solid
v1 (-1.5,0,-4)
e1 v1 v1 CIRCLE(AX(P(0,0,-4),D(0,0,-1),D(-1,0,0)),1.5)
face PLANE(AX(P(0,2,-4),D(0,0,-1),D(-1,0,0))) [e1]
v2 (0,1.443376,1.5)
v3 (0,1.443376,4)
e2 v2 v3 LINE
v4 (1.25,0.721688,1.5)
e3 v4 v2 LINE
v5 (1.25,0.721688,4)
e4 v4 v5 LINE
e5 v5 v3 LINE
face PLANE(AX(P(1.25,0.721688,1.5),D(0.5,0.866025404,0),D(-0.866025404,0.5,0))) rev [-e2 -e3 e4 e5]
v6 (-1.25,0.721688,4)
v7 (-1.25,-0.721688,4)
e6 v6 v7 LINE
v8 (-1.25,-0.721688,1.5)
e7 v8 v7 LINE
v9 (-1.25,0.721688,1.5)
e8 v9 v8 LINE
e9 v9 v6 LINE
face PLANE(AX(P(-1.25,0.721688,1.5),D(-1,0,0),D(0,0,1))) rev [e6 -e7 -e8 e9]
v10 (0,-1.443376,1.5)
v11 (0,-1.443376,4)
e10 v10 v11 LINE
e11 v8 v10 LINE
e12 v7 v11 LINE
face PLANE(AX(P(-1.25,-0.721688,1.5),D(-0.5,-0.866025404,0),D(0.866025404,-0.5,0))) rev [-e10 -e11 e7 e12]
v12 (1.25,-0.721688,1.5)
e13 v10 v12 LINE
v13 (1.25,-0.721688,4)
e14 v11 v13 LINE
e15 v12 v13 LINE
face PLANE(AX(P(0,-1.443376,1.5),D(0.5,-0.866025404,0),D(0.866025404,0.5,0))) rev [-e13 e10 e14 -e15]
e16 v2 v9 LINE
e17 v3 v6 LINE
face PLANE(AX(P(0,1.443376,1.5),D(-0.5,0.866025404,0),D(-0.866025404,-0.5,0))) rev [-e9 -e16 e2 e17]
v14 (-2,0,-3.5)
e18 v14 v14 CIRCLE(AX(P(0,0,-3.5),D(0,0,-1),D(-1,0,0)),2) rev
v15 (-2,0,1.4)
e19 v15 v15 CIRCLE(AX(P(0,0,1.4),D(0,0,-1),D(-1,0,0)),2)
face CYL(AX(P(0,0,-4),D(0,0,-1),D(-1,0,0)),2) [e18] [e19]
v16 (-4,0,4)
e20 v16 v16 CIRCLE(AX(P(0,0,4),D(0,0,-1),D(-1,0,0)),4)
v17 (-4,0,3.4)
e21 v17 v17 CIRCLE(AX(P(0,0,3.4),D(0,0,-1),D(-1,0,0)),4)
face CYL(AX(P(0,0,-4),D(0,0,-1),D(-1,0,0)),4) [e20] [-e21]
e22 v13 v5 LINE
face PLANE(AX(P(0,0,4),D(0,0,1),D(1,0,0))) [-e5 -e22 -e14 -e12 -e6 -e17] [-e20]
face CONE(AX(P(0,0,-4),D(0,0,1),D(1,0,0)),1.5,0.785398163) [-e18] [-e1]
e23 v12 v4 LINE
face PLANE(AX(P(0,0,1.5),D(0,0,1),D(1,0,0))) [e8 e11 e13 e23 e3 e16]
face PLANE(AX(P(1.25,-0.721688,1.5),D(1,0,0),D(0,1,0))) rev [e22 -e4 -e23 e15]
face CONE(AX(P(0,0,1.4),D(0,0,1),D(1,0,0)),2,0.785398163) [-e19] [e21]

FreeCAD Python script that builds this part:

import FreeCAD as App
import Part
import Sketcher

V = App.Vector
Q = App.Units.Quantity


def edges_at(feature, points):
    """Names of the edges that pass closest to the given points."""
    edges = feature.Shape.Edges
    near = lambda p: min(range(len(edges)), key=lambda i: edges[i].distToShape(Part.Vertex(*p))[0])
    return sorted({f"Edge{near(p) + 1}" for p in points})

doc = App.newDocument("Part")
body = doc.addObject("PartDesign::Body", "Body")

sketch1 = body.newObject("Sketcher::SketchObject", "Sketch")
sketch1.AttachmentSupport = (doc.getObject("YZ_Plane"), [""])
sketch1.MapMode = "FlatFace"
sketch1.addGeometry(Part.LineSegment(V(4, 4, 0), V(0, 4, 0)), False)
sketch1.addGeometry(Part.LineSegment(V(0, 4, 0), V(0, -4, 0)), False)
sketch1.addGeometry(Part.LineSegment(V(0, -4, 0), V(2, -4, 0)), False)
sketch1.addGeometry(Part.LineSegment(V(2, -4, 0), V(2, 1.4, 0)), False)
sketch1.addGeometry(Part.LineSegment(V(2, 1.4, 0), V(4, 3.4, 0)), False)
sketch1.addGeometry(Part.LineSegment(V(4, 3.4, 0), V(4, 4, 0)), False)
sketch1.addConstraint(Sketcher.Constraint("Coincident", 0, 2, 1, 1))
sketch1.addConstraint(Sketcher.Constraint("Coincident", 1, 2, 2, 1))
sketch1.addConstraint(Sketcher.Constraint("Coincident", 2, 2, 3, 1))
sketch1.addConstraint(Sketcher.Constraint("Coincident", 3, 2, 4, 1))
sketch1.addConstraint(Sketcher.Constraint("Coincident", 4, 2, 5, 1))
sketch1.addConstraint(Sketcher.Constraint("Coincident", 5, 2, 0, 1))
sketch1.addConstraint(Sketcher.Constraint("Horizontal", 0))
sketch1.addConstraint(Sketcher.Constraint("Vertical", 1))
sketch1.addConstraint(Sketcher.Constraint("Horizontal", 2))
sketch1.addConstraint(Sketcher.Constraint("Vertical", 3))
sketch1.addConstraint(Sketcher.Constraint("Vertical", 5))
sketch1.addConstraint(Sketcher.Constraint("Symmetric", 0, 2, 1, 2, -1, 1))
sketch1.addConstraint(Sketcher.Constraint("DistanceX", 0, 2, 0, 1, 4.0))
sketch1.addConstraint(Sketcher.Constraint("DistanceX", 2, 1, 2, 2, 2.0))
sketch1.addConstraint(Sketcher.Constraint("DistanceY", 1, 2, 1, 1, 8.0))
sketch1.addConstraint(Sketcher.Constraint("Angle", 4, Q("45 deg")))
sketch1.addConstraint(Sketcher.Constraint("DistanceY", 3, 1, 3, 2, 5.4))
revolution = body.newObject("PartDesign::Revolution", "Revolution")
revolution.Profile = sketch1
revolution.ReferenceAxis = (sketch1, ["V_Axis"])
revolution.Angle = 360
doc.recompute()

chamfer = body.newObject("PartDesign::Chamfer", "Chamfer")
chamfer.Base = (revolution, edges_at(revolution, [(2, 0, -4)]))
chamfer.Size = 0.5

sketch2 = body.newObject("Sketcher::SketchObject", "Sketch001")
sketch2.AttachmentSupport = (doc.getObject("XY_Plane"), [""])
sketch2.MapMode = "FlatFace"
sketch2.AttachmentOffset = App.Placement(V(0, 0, 4), App.Rotation())
sketch2.addGeometry(Part.LineSegment(V(0, 1.4, 0), V(-1.2, 0.7, 0)), False)
sketch2.addGeometry(Part.LineSegment(V(-1.2, 0.7, 0), V(-1.2, -0.7, 0)), False)
sketch2.addGeometry(Part.LineSegment(V(-1.2, -0.7, 0), V(0, -1.4, 0)), False)
sketch2.addGeometry(Part.LineSegment(V(0, -1.4, 0), V(1.2, -0.7, 0)), False)
sketch2.addGeometry(Part.LineSegment(V(1.2, -0.7, 0), V(1.2, 0.7, 0)), False)
sketch2.addGeometry(Part.LineSegment(V(1.2, 0.7, 0), V(0, 1.4, 0)), False)
sketch2.addConstraint(Sketcher.Constraint("Coincident", 0, 2, 1, 1))
sketch2.addConstraint(Sketcher.Constraint("Coincident", 1, 2, 2, 1))
sketch2.addConstraint(Sketcher.Constraint("Coincident", 2, 2, 3, 1))
sketch2.addConstraint(Sketcher.Constraint("Coincident", 3, 2, 4, 1))
sketch2.addConstraint(Sketcher.Constraint("Coincident", 4, 2, 5, 1))
sketch2.addConstraint(Sketcher.Constraint("Coincident", 5, 2, 0, 1))
sketch2.addConstraint(Sketcher.Constraint("Vertical", 1))
sketch2.addConstraint(Sketcher.Constraint("Vertical", 4))
sketch2.addConstraint(Sketcher.Constraint("Symmetric", 0, 2, 3, 2, -1, 1))
sketch2.addConstraint(Sketcher.Constraint("Symmetric", 2, 2, 5, 2, -1, 1))
sketch2.addConstraint(Sketcher.Constraint("PointOnObject", 2, 2, -2))
sketch2.addConstraint(Sketcher.Constraint("Parallel", 2, 5))
sketch2.addConstraint(Sketcher.Constraint("Horizontal", 1, 2, 3, 2))
sketch2.addConstraint(Sketcher.Constraint("Angle", 0, Q("-150 deg")))
sketch2.addConstraint(Sketcher.Constraint("DistanceX", 1, 2, 3, 2, 2.5))
sketch2.addConstraint(Sketcher.Constraint("DistanceY", 1, 2, 1, 1, 1.443376))
pocket1 = body.newObject("PartDesign::Pocket", "Pocket")
pocket1.Profile = sketch2
pocket1.Length = 2.5

doc.recompute()
